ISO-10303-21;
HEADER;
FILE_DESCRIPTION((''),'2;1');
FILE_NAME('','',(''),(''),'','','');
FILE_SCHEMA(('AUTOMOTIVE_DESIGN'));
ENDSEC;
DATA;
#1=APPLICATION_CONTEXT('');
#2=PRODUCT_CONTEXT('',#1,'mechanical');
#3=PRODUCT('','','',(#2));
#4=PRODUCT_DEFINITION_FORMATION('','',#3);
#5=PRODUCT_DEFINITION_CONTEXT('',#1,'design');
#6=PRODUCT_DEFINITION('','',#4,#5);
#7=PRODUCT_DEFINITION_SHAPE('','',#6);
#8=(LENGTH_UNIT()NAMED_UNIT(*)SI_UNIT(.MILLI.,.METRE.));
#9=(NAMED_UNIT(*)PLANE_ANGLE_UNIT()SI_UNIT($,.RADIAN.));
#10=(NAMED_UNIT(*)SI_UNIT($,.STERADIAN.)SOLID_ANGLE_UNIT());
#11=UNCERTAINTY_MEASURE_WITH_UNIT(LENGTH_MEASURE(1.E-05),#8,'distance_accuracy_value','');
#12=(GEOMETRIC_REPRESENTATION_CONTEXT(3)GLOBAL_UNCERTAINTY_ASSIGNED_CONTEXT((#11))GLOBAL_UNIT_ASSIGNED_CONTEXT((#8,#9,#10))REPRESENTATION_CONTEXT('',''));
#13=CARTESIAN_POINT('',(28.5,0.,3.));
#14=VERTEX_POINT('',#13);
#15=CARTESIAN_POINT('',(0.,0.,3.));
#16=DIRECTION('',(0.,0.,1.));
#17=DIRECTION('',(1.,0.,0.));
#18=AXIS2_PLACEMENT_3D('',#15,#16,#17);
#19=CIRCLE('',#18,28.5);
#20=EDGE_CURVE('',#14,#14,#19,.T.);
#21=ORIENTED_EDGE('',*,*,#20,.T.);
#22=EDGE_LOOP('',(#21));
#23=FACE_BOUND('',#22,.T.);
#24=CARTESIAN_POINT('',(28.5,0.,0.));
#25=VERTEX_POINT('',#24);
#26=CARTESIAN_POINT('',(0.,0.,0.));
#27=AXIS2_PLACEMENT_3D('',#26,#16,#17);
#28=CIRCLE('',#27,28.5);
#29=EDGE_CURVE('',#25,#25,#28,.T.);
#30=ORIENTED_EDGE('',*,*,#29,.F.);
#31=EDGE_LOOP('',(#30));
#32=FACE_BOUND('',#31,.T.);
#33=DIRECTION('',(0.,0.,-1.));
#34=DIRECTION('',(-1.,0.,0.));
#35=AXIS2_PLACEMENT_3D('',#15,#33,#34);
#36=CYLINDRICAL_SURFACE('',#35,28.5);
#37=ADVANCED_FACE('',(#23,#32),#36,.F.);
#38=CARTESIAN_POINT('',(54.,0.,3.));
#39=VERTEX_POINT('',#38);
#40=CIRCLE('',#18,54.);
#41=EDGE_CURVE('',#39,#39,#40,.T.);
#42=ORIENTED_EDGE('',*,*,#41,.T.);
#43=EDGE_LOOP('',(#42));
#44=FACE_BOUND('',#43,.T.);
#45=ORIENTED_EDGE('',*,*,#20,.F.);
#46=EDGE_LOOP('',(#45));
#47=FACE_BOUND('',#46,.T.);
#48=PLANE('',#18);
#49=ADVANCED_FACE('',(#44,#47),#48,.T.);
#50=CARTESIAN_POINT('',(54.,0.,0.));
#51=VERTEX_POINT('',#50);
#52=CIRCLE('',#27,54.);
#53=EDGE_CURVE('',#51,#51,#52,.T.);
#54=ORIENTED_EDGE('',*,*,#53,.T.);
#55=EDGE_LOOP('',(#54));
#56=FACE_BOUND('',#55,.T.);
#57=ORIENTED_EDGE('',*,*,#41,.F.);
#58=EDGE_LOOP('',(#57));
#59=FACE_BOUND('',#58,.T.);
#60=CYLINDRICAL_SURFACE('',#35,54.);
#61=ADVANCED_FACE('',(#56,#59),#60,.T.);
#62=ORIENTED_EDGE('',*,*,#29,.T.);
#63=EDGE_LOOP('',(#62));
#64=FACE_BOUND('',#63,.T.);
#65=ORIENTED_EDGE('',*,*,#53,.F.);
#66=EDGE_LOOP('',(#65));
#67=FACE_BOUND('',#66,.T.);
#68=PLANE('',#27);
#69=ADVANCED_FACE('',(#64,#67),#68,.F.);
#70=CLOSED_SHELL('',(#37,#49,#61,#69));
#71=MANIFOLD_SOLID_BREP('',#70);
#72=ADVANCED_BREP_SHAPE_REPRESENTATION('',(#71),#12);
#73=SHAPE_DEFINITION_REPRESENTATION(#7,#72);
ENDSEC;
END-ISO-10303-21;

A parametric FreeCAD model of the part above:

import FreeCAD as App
import Part
import Sketcher

doc = App.newDocument("Part")
body = doc.addObject("PartDesign::Body", "Body")

# Sketch on XY plane
sketch1 = doc.addObject("Sketcher::SketchObject", "Sketch")
body.addObject(sketch1)
sketch1.AttachmentSupport = (doc.XY_Plane, [""])
sketch1.MapMode = "FlatFace"
sketch1.addGeometry([
    Part.Circle(App.Vector(0, 0, 0), App.Vector(0, 0, 1), 54),
    Part.Circle(App.Vector(0, 0, 0), App.Vector(0, 0, 1), 28),
], False)
sketch1.addConstraint([
    Sketcher.Constraint("Coincident", 0, 3, -1, 1),
    Sketcher.Constraint("Coincident", 1, 3, -1, 1),
    Sketcher.Constraint("Diameter", 0, 108.0),
    Sketcher.Constraint("Diameter", 1, 57.0),
])
pad1 = doc.addObject("PartDesign::Pad", "Pad")
body.addObject(pad1)
pad1.Profile = sketch1
pad1.Length = 3

doc.recompute()
